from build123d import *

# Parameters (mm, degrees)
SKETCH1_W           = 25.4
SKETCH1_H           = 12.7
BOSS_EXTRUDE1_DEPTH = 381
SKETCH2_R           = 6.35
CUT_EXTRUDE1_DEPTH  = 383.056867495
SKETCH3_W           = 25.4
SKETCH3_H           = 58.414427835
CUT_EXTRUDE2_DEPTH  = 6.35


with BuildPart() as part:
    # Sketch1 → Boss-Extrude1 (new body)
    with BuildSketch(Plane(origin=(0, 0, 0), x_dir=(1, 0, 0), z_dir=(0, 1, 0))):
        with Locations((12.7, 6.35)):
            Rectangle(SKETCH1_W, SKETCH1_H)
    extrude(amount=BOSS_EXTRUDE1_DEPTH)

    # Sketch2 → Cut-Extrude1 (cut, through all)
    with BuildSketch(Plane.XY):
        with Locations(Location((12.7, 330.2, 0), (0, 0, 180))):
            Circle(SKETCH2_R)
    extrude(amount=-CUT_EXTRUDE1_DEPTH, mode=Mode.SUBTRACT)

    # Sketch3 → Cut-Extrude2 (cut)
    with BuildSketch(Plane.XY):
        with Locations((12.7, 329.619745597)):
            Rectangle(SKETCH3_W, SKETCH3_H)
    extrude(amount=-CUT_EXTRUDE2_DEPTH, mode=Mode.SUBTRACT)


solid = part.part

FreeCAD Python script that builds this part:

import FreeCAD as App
import Part
import Sketcher
Q = App.Units.Quantity

doc = App.newDocument("Part")
params = doc.addObject("Spreadsheet::Sheet", "Params")
for row, (alias, value) in enumerate([
    ("sketch1_width", "1 in"),
    ("sketch1_height", "0.5 in"),
    ("pad1_length", "15 in"),
    ("sketch2_diameter", "0.5 in"),
    ("sketch3_width", "1 in"),
    ("pocket2_length", "0.25 in"),
], start=1):
    params.set(f"A{row}", alias)
    params.set(f"B{row}", "=" + value)
    params.setAlias(f"B{row}", alias)

body = doc.addObject("PartDesign::Body", "Body")

# Sketch on XZ plane
sketch1 = doc.addObject("Sketcher::SketchObject", "Sketch")
body.addObject(sketch1)
sketch1.AttachmentSupport = (doc.XZ_Plane, [""])
sketch1.MapMode = "FlatFace"
sketch1.addGeometry([
    Part.LineSegment(App.Vector(0, -13, 0), App.Vector(0, 0, 0)),
    Part.LineSegment(App.Vector(0, 0, 0), App.Vector(25, 0, 0)),
    Part.LineSegment(App.Vector(25, 0, 0), App.Vector(25, -13, 0)),
    Part.LineSegment(App.Vector(25, -13, 0), App.Vector(0, -13, 0)),
], False)
sketch1.addConstraint([
    Sketcher.Constraint("Coincident", 0, 2, 1, 1),
    Sketcher.Constraint("Coincident", 1, 2, 2, 1),
    Sketcher.Constraint("Coincident", 2, 2, 3, 1),
    Sketcher.Constraint("Coincident", 3, 2, 0, 1),
    Sketcher.Constraint("Vertical", 0),
    Sketcher.Constraint("Horizontal", 1),
    Sketcher.Constraint("Vertical", 2),
    Sketcher.Constraint("Horizontal", 3),
    Sketcher.Constraint("Coincident", 0, 2, -1, 1),
    Sketcher.Constraint("DistanceX", 1, 1, 1, 2, Q("1 in")),
    Sketcher.Constraint("DistanceY", 0, 1, 0, 2, Q("0.5 in")),
])
sketch1.setExpression("Constraints[9]", "Params.sketch1_width")
sketch1.setExpression("Constraints[10]", "Params.sketch1_height")
pad1 = doc.addObject("PartDesign::Pad", "Pad")
body.addObject(pad1)
pad1.Profile = sketch1
pad1.setExpression("Length", "Params.pad1_length")
pad1.Reversed = True

# Sketch on XY plane
sketch2 = doc.addObject("Sketcher::SketchObject", "Sketch001")
body.addObject(sketch2)
sketch2.AttachmentSupport = (doc.XY_Plane, [""])
sketch2.MapMode = "FlatFace"
sketch2.addGeometry(Part.Circle(App.Vector(13, 330, 0), App.Vector(0, 0, 1), 6), False)
sketch2.addConstraint([
    Sketcher.Constraint("Diameter", 0, Q("0.5 in")),
    Sketcher.Constraint("DistanceY", -1, 1, 0, 3, Q("13 in")),
    Sketcher.Constraint("DistanceX", -1, 1, 0, 3, Q("0.5 in")),
])
sketch2.setExpression("Constraints[0]", "Params.sketch2_diameter")
pocket1 = doc.addObject("PartDesign::Pocket", "Pocket")
body.addObject(pocket1)
pocket1.Profile = sketch2
pocket1.Type = "ThroughAll"

# Sketch on XY plane
sketch3 = doc.addObject("Sketcher::SketchObject", "Sketch002")
body.addObject(sketch3)
sketch3.AttachmentSupport = (doc.XY_Plane, [""])
sketch3.MapMode = "FlatFace"
sketch3.addGeometry([
    Part.LineSegment(App.Vector(0, 359, 0), App.Vector(0, 300, 0)),
    Part.LineSegment(App.Vector(0, 300, 0), App.Vector(25, 300, 0)),
    Part.LineSegment(App.Vector(25, 300, 0), App.Vector(25, 359, 0)),
    Part.LineSegment(App.Vector(25, 359, 0), App.Vector(0, 359, 0)),
], False)
sketch3.addConstraint([
    Sketcher.Constraint("Coincident", 0, 2, 1, 1),
    Sketcher.Constraint("Coincident", 1, 2, 2, 1),
    Sketcher.Constraint("Coincident", 2, 2, 3, 1),
    Sketcher.Constraint("Coincident", 3, 2, 0, 1),
    Sketcher.Constraint("Vertical", 0),
    Sketcher.Constraint("Horizontal", 1),
    Sketcher.Constraint("Vertical", 2),
    Sketcher.Constraint("Horizontal", 3),
    Sketcher.Constraint("PointOnObject", 0, 2, -2),
    Sketcher.Constraint("DistanceX", 1, 1, 1, 2, Q("1 in")),
    Sketcher.Constraint("DistanceY", 0, 2, 0, 1, Q("58.414428 mm")),
    Sketcher.Constraint("DistanceY", -1, 1, 0, 2, Q("300.412532 mm")),
])
sketch3.setExpression("Constraints[9]", "Params.sketch3_width")
pocket2 = doc.addObject("PartDesign::Pocket", "Pocket001")
body.addObject(pocket2)
pocket2.Profile = sketch3
pocket2.setExpression("Length", "Params.pocket2_length")

doc.recompute()
